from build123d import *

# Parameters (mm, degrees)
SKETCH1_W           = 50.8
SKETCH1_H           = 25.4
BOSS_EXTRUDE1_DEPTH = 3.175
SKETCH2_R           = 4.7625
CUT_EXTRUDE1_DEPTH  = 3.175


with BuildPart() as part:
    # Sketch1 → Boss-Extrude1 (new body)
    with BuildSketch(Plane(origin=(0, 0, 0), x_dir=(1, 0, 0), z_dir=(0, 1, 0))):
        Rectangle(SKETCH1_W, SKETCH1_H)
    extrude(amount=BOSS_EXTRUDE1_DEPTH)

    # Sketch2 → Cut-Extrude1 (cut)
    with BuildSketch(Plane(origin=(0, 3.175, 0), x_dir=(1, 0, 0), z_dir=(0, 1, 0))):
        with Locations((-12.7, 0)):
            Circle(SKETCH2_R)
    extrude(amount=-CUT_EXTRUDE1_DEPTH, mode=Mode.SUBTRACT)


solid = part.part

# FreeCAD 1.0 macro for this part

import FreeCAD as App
import Part
import Sketcher

V = App.Vector
Q = App.Units.Quantity

doc = App.newDocument("Part")
body = doc.addObject("PartDesign::Body", "Body")

# Sketch on XZ plane
sketch1 = doc.addObject("Sketcher::SketchObject", "Sketch")
body.addObject(sketch1)
sketch1.AttachmentSupport = (doc.XZ_Plane, [""])
sketch1.MapMode = "FlatFace"
sketch1.addGeometry([
    Part.LineSegment(V(-25.4, -12.7, 0), V(-25.4, 12.7, 0)),
    Part.LineSegment(V(-25.4, 12.7, 0), V(25.4, 12.7, 0)),
    Part.LineSegment(V(25.4, 12.7, 0), V(25.4, -12.7, 0)),
    Part.LineSegment(V(25.4, -12.7, 0), V(-25.4, -12.7, 0)),
], False)
sketch1.addConstraint([
    Sketcher.Constraint("Coincident", 0, 2, 1, 1),
    Sketcher.Constraint("Coincident", 1, 2, 2, 1),
    Sketcher.Constraint("Coincident", 2, 2, 3, 1),
    Sketcher.Constraint("Coincident", 3, 2, 0, 1),
    Sketcher.Constraint("Vertical", 0),
    Sketcher.Constraint("Horizontal", 1),
    Sketcher.Constraint("Vertical", 2),
    Sketcher.Constraint("Horizontal", 3),
    Sketcher.Constraint("Symmetric", 0, 2, 2, 2, -1, 1),
    Sketcher.Constraint("DistanceX", 1, 1, 1, 2, Q("2 in")),
    Sketcher.Constraint("DistanceY", 0, 1, 0, 2, Q("1 in")),
])
pad1 = doc.addObject("PartDesign::Pad", "Pad")
body.addObject(pad1)
pad1.Profile = sketch1
pad1.Length = Q("0.125 in")
pad1.Reversed = True

# Sketch on XZ plane
sketch2 = doc.addObject("Sketcher::SketchObject", "Sketch001")
body.addObject(sketch2)
sketch2.AttachmentSupport = (doc.XZ_Plane, [""])
sketch2.MapMode = "FlatFace"
sketch2.AttachmentOffset = App.Placement(V(0, 0, -0.125 * 25.4), App.Rotation())
sketch2.addGeometry(Part.Circle(V(-12.7, 0, 0), V(0, 0, 1), 4.7625), False)
sketch2.addConstraint([
    Sketcher.Constraint("PointOnObject", 0, 3, -1),
    Sketcher.Constraint("Diameter", 0, Q("0.375 in")),
    Sketcher.Constraint("DistanceX", 0, 3, -1, 1, Q("0.5 in")),
])
pocket1 = doc.addObject("PartDesign::Pocket", "Pocket")
body.addObject(pocket1)
pocket1.Profile = sketch2
pocket1.Length = Q("0.125 in")
pocket1.Reversed = True

doc.recompute()
